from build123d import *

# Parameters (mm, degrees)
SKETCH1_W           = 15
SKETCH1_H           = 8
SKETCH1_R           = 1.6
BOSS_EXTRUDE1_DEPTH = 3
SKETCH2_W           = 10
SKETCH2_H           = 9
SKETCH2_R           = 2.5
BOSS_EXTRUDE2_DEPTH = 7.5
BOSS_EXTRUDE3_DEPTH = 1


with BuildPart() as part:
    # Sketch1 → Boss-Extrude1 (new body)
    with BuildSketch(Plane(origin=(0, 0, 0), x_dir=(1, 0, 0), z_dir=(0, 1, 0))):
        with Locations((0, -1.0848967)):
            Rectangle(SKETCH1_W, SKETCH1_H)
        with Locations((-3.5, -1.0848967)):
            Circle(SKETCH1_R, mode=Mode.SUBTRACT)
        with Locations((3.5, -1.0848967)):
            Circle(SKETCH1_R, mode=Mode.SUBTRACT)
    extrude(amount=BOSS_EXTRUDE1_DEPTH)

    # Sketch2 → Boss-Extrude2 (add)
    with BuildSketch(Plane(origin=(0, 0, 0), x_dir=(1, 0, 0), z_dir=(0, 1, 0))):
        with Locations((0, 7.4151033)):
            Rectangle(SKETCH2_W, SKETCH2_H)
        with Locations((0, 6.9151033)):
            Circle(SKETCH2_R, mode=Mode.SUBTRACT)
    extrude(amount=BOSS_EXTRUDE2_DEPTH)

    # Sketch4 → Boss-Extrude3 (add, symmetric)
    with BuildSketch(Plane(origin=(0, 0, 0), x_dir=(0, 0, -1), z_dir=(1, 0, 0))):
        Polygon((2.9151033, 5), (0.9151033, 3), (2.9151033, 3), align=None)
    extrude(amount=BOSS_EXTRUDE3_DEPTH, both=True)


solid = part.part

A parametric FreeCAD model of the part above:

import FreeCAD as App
import Part
import Sketcher
Q = App.Units.Quantity


def add_polygon(sketch, points):
    """Adds a closed chain of lines whose ends are joined by coincident constraints."""
    first, n = sketch.GeometryCount, len(points)
    for a, b in zip(points, points[1:] + points[:1]):
        sketch.addGeometry(Part.LineSegment(App.Vector(*a, 0), App.Vector(*b, 0)), False)
    for i in range(n):
        sketch.addConstraint(Sketcher.Constraint("Coincident", first + i, 2, first + (i + 1) % n, 1))

doc = App.newDocument("Part")
body = doc.addObject("PartDesign::Body", "Body")

sketch1 = body.newObject("Sketcher::SketchObject", "Sketch")
sketch1.AttachmentSupport = (doc.getObject("XZ_Plane"), [""])
sketch1.MapMode = "FlatFace"
add_polygon(sketch1, [(-7.5, -2.915103), (-7.5, 5.084897), (7.5, 5.084897), (7.5, -2.915103)])
sketch1.addGeometry(Part.Circle(App.Vector(-3.5, 1.084897, 0), App.Vector(0, 0, 1), 1.6), False)
sketch1.addGeometry(Part.Circle(App.Vector(3.5, 1.084897, 0), App.Vector(0, 0, 1), 1.6), False)
sketch1.addConstraint(Sketcher.Constraint("Vertical", 0))
sketch1.addConstraint(Sketcher.Constraint("Horizontal", 1))
sketch1.addConstraint(Sketcher.Constraint("Vertical", 2))
sketch1.addConstraint(Sketcher.Constraint("Horizontal", 3))
sketch1.addConstraint(Sketcher.Constraint("Equal", 4, 5))
sketch1.addConstraint(Sketcher.Constraint("Symmetric", 4, 3, 5, 3, -2))
sketch1.addConstraint(Sketcher.Constraint("Diameter", 4, Q("3.2 mm")))
sketch1.addConstraint(Sketcher.Constraint("DistanceX", 1, 1, 1, 2, Q("15 mm")))
sketch1.addConstraint(Sketcher.Constraint("DistanceY", 0, 1, 0, 2, Q("8 mm")))
sketch1.addConstraint(Sketcher.Constraint("DistanceX", 4, 3, 5, 3, Q("7 mm")))
sketch1.addConstraint(Sketcher.Constraint("DistanceX", 0, 2, 4, 3, Q("4 mm")))
sketch1.addConstraint(Sketcher.Constraint("DistanceY", 4, 3, 0, 2, Q("4 mm")))
sketch1.addConstraint(Sketcher.Constraint("DistanceY", -1, 1, 4, 3, Q("1.084897 mm")))
pad1 = body.newObject("PartDesign::Pad", "Pad")
pad1.Profile = sketch1
pad1.Length = 3
pad1.Reversed = True

sketch2 = body.newObject("Sketcher::SketchObject", "Sketch001")
sketch2.AttachmentSupport = (doc.getObject("XZ_Plane"), [""])
sketch2.MapMode = "FlatFace"
add_polygon(sketch2, [(-5, -11.915103), (-5, -2.915103), (5, -2.915103), (5, -11.915103)])
sketch2.addGeometry(Part.Circle(App.Vector(0, -6.915103, 0), App.Vector(0, 0, 1), 2.5), False)
sketch2.addConstraint(Sketcher.Constraint("Vertical", 0))
sketch2.addConstraint(Sketcher.Constraint("Horizontal", 1))
sketch2.addConstraint(Sketcher.Constraint("Vertical", 2))
sketch2.addConstraint(Sketcher.Constraint("Horizontal", 3))
sketch2.addConstraint(Sketcher.Constraint("PointOnObject", 4, 3, -2))
sketch2.addConstraint(Sketcher.Constraint("Diameter", 4, Q("5 mm")))
sketch2.addConstraint(Sketcher.Constraint("DistanceX", 1, 1, 1, 2, Q("10 mm")))
sketch2.addConstraint(Sketcher.Constraint("DistanceY", 0, 1, 0, 2, Q("9 mm")))
sketch2.addConstraint(Sketcher.Constraint("DistanceX", 0, 2, -1, 1, Q("5 mm")))
sketch2.addConstraint(Sketcher.Constraint("DistanceY", 4, 3, 0, 2, Q("4 mm")))
sketch2.addConstraint(Sketcher.Constraint("DistanceY", 4, 3, -1, 1, Q("6.915103 mm")))
pad2 = body.newObject("PartDesign::Pad", "Pad001")
pad2.Profile = sketch2
pad2.Length = 7.5
pad2.Reversed = True

sketch3 = body.newObject("Sketcher::SketchObject", "Sketch002")
sketch3.AttachmentSupport = (doc.getObject("YZ_Plane"), [""])
sketch3.MapMode = "FlatFace"
add_polygon(sketch3, [(5, -2.915103), (3, -0.915103), (3, -2.915103)])
sketch3.addConstraint(Sketcher.Constraint("Vertical", 1))
sketch3.addConstraint(Sketcher.Constraint("Horizontal", 2))
sketch3.addConstraint(Sketcher.Constraint("Equal", 2, 1))
sketch3.addConstraint(Sketcher.Constraint("DistanceX", 2, 1, 2, 2, Q("2 mm")))
sketch3.addConstraint(Sketcher.Constraint("DistanceX", -1, 1, 0, 2, Q("3 mm")))
sketch3.addConstraint(Sketcher.Constraint("DistanceY", 0, 2, -1, 1, Q("0.915103 mm")))
pad3 = body.newObject("PartDesign::Pad", "Pad002")
pad3.Profile = sketch3
pad3.Length = 2
pad3.Midplane = True

doc.recompute()
